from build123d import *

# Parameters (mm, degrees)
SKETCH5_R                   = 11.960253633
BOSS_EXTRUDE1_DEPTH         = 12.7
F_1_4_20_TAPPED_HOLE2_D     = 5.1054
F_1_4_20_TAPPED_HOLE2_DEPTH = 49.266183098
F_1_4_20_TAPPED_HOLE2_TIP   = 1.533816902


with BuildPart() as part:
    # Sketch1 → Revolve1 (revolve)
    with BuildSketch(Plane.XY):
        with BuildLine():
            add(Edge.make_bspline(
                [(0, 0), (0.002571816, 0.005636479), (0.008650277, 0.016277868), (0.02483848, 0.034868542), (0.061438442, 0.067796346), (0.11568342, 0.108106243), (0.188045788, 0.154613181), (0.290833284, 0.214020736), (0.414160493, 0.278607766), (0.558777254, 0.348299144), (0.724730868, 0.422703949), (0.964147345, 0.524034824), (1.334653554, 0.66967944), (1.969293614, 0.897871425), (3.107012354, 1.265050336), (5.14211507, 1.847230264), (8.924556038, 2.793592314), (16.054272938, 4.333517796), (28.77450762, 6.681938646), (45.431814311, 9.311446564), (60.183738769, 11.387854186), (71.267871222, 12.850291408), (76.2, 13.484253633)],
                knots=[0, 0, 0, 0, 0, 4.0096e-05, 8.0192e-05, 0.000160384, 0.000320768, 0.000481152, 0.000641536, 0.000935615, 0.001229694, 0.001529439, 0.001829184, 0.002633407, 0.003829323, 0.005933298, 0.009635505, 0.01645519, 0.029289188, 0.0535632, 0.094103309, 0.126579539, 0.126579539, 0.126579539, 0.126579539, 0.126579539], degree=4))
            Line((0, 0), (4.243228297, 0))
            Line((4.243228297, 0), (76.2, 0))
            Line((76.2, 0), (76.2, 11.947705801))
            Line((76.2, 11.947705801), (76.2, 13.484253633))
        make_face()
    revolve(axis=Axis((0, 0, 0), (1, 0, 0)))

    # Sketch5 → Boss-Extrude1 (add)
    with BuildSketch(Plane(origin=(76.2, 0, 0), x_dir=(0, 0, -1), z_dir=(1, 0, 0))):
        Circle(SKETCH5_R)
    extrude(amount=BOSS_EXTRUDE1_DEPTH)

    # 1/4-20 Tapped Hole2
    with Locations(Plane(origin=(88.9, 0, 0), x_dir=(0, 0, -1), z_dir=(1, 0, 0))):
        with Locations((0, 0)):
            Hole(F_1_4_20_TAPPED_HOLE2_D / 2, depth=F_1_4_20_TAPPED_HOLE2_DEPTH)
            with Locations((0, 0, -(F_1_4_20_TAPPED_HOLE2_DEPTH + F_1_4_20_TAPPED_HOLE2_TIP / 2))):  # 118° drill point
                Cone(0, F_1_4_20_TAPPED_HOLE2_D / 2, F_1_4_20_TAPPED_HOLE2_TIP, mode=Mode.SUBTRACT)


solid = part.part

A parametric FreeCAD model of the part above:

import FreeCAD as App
import Part
import Sketcher
Q = App.Units.Quantity

doc = App.newDocument("Part")
body = doc.addObject("PartDesign::Body", "Body")

sketch1 = body.newObject("Sketcher::SketchObject", "Sketch")
sketch1.AttachmentSupport = (doc.getObject("XY_Plane"), [""])
sketch1.MapMode = "FlatFace"
sketch1.addGeometry(Part.BSplineCurve([App.Vector(0, 0, 0), App.Vector(0.002572, 0.005636, 0), App.Vector(0.00865, 0.016278, 0), App.Vector(0.024838, 0.034869, 0), App.Vector(0.061438, 0.067796, 0), App.Vector(0.115683, 0.108106, 0), App.Vector(0.188046, 0.154613, 0), App.Vector(0.290833, 0.214021, 0), App.Vector(0.41416, 0.278608, 0), App.Vector(0.558777, 0.348299, 0), App.Vector(0.724731, 0.422704, 0), App.Vector(0.964147, 0.524035, 0), App.Vector(1.334654, 0.669679, 0), App.Vector(1.969294, 0.897871, 0), App.Vector(3.107012, 1.26505, 0), App.Vector(5.142115, 1.84723, 0), App.Vector(8.924556, 2.793592, 0), App.Vector(16.054273, 4.333518, 0), App.Vector(28.774508, 6.681939, 0), App.Vector(45.431814, 9.311447, 0), App.Vector(60.183739, 11.387854, 0), App.Vector(71.267871, 12.850291, 0), App.Vector(76.2, 13.484254, 0)], [5, 1, 1, 1, 1, 1, 1, 1, 1, 1, 1, 1, 1, 1, 1, 1, 1, 1, 1, 5], [0, 0.000040096, 0.000080192, 0.000160384, 0.000320768, 0.000481152, 0.000641536, 0.000935615, 0.001229694, 0.001529439, 0.001829184, 0.002633407, 0.003829323, 0.005933298, 0.009635505, 0.01645519, 0.029289188, 0.0535632, 0.094103309, 0.126579539], False, 4, [1, 1, 1, 1, 1, 1, 1, 1, 1, 1, 1, 1, 1, 1, 1, 1, 1, 1, 1, 1, 1, 1, 1], False), False)
sketch1.addGeometry(Part.LineSegment(App.Vector(0, 0, 0), App.Vector(76.2, 0, 0)), False)
sketch1.addGeometry(Part.LineSegment(App.Vector(76.2, 0, 0), App.Vector(76.2, 13.484254, 0)), False)
sketch1.addConstraint(Sketcher.Constraint("Block", 0))
sketch1.addConstraint(Sketcher.Constraint("Coincident", 0, 1, 1, 1))
sketch1.addConstraint(Sketcher.Constraint("Coincident", 1, 2, 2, 1))
sketch1.addConstraint(Sketcher.Constraint("Coincident", 2, 2, 0, 2))
sketch1.addConstraint(Sketcher.Constraint("Horizontal", 1))
sketch1.addConstraint(Sketcher.Constraint("Vertical", 2))
revolution = body.newObject("PartDesign::Revolution", "Revolution")
revolution.Profile = sketch1
revolution.ReferenceAxis = (sketch1, ["H_Axis"])
revolution.Angle = 360

sketch2 = body.newObject("Sketcher::SketchObject", "Sketch001")
sketch2.AttachmentSupport = (doc.getObject("YZ_Plane"), [""])
sketch2.MapMode = "FlatFace"
sketch2.AttachmentOffset = App.Placement(App.Vector(0, 0, 3 * 25.4), App.Rotation())
sketch2.addGeometry(Part.Circle(App.Vector(0, 0, 0), App.Vector(0, 0, 1), 11.960254), False)
sketch2.addConstraint(Sketcher.Constraint("Coincident", 0, 3, -1, 1))
sketch2.addConstraint(Sketcher.Constraint("Diameter", 0, 23.920507))
pad1 = body.newObject("PartDesign::Pad", "Pad")
pad1.Profile = sketch2
pad1.Length = Q("0.5 in")

sketch3 = body.newObject("Sketcher::SketchObject", "Sketch002")
sketch3.AttachmentSupport = (doc.getObject("YZ_Plane"), [""])
sketch3.MapMode = "FlatFace"
sketch3.AttachmentOffset = App.Placement(App.Vector(0, 0, 3.5 * 25.4), App.Rotation())
sketch3.addGeometry(Part.Circle(App.Vector(0, 0, 0), App.Vector(0, 0, 1), 2.5527), False)
sketch3.addConstraint(Sketcher.Constraint("Coincident", 0, 3, -1, 1))
sketch3.addConstraint(Sketcher.Constraint("Diameter", 0, Q("0.201 in")))
doc.recompute()
hole = body.newObject("PartDesign::Hole", "Hole")
hole.Profile = sketch3
hole.ThreadType = "None"
hole.Diameter = Q("0.201 in")
hole.DepthType = "Dimension"
hole.Depth = 49.266183
hole.DrillPoint = "Angled"
hole.DrillPointAngle = 118

doc.recompute()
